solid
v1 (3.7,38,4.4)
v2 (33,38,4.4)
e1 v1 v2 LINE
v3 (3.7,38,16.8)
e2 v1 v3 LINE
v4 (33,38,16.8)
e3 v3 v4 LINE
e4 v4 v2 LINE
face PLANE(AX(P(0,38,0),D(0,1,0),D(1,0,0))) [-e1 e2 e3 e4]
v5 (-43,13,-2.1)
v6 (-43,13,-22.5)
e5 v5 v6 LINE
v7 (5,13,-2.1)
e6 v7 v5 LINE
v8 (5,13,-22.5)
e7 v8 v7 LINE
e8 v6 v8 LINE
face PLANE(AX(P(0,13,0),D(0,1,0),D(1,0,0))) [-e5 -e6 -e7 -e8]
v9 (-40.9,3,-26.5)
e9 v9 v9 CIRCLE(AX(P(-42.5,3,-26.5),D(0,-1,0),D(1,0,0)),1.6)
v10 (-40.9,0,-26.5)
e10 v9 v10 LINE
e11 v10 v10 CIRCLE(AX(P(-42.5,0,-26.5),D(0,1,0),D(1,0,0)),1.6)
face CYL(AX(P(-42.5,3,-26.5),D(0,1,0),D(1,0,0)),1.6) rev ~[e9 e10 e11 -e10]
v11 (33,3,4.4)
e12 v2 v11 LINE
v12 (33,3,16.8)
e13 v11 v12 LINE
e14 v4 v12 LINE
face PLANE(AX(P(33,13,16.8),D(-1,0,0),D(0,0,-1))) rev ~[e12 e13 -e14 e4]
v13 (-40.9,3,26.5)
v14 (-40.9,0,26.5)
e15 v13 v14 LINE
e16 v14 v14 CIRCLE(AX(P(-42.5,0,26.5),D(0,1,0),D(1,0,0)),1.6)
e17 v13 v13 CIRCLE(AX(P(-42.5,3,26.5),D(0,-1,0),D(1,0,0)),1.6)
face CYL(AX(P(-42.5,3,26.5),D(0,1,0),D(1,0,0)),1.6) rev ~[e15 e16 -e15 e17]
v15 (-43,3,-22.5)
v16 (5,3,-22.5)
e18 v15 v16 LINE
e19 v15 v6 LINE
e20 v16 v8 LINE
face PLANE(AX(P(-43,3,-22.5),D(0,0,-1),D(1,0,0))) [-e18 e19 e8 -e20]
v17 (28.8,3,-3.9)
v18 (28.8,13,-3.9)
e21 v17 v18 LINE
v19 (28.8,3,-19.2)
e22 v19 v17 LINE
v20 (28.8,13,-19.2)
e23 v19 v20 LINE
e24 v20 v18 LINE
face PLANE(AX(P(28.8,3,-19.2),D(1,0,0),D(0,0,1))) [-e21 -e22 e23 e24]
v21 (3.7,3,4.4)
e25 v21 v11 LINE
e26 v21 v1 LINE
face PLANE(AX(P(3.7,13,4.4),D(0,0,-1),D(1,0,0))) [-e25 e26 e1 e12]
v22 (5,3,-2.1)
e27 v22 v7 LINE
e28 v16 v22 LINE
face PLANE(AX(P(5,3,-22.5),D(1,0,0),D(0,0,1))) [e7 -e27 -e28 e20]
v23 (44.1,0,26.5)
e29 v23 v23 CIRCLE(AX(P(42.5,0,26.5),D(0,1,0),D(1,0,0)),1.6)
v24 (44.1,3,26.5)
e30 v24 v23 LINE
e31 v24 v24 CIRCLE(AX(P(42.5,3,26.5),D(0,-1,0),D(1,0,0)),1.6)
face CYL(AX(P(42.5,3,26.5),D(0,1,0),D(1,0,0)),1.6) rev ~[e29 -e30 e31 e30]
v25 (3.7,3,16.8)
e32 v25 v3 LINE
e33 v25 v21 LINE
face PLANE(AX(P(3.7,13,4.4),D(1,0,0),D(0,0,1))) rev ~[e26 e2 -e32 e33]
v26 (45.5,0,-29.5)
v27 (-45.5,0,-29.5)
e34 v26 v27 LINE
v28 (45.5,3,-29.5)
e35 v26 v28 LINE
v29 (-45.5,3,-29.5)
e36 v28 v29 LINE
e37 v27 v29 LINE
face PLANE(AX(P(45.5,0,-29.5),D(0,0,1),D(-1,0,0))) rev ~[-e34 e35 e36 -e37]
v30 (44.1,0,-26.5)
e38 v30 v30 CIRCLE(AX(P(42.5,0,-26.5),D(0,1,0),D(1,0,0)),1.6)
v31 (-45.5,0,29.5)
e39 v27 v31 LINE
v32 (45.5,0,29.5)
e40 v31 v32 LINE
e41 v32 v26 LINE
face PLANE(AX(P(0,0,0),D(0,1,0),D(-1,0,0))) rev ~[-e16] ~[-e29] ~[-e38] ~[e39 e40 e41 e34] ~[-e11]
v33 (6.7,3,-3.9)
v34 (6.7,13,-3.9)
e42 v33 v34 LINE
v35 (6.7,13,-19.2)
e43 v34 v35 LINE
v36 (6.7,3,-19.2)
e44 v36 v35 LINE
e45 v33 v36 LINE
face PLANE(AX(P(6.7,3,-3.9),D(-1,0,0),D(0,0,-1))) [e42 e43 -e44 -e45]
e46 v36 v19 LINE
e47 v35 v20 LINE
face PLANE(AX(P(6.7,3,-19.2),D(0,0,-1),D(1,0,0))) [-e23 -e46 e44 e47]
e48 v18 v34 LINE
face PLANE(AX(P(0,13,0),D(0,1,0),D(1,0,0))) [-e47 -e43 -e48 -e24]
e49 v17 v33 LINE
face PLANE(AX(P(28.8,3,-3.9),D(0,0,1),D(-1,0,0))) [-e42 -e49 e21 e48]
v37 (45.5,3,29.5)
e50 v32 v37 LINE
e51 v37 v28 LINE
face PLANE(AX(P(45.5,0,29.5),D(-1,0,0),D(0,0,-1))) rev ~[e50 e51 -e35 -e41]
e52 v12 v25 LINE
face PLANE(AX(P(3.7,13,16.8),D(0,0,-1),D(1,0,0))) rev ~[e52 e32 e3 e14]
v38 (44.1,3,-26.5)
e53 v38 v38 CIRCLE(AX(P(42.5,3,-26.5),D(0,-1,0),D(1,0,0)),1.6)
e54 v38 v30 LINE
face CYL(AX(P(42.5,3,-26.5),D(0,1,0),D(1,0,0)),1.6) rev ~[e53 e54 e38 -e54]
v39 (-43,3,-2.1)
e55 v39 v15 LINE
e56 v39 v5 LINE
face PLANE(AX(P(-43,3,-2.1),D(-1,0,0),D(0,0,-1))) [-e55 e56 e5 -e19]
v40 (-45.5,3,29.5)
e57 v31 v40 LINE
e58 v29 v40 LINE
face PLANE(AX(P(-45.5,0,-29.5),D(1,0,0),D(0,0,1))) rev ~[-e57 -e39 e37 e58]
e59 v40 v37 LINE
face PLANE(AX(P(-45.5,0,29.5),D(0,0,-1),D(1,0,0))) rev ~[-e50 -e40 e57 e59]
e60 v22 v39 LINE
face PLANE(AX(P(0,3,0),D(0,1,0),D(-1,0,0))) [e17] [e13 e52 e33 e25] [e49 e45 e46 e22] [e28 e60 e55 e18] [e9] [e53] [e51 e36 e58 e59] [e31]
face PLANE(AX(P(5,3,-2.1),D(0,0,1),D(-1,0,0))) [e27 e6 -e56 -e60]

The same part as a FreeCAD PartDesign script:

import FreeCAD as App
import Part
import Sketcher

doc = App.newDocument("Part")
body = doc.addObject("PartDesign::Body", "Body")

sketch1 = body.newObject("Sketcher::SketchObject", "Sketch")
sketch1.AttachmentSupport = (doc.getObject("XZ_Plane"), [""])
sketch1.MapMode = "FlatFace"
sketch1.addGeometry([
    Part.LineSegment(App.Vector(45.5, 29.5, 0), App.Vector(45.5, -29.5, 0)),
    Part.LineSegment(App.Vector(45.5, -29.5, 0), App.Vector(-45.5, -29.5, 0)),
    Part.LineSegment(App.Vector(-45.5, -29.5, 0), App.Vector(-45.5, 29.5, 0)),
    Part.LineSegment(App.Vector(-45.5, 29.5, 0), App.Vector(45.5, 29.5, 0)),
], False)
sketch1.addConstraint([
    Sketcher.Constraint("Coincident", 0, 2, 1, 1),
    Sketcher.Constraint("Coincident", 1, 2, 2, 1),
    Sketcher.Constraint("Coincident", 2, 2, 3, 1),
    Sketcher.Constraint("Coincident", 3, 2, 0, 1),
    Sketcher.Constraint("Vertical", 0),
    Sketcher.Constraint("Horizontal", 1),
    Sketcher.Constraint("Vertical", 2),
    Sketcher.Constraint("Horizontal", 3),
    Sketcher.Constraint("Symmetric", 0, 2, 2, 2, -1, 1),
    Sketcher.Constraint("DistanceX", 1, 2, 1, 1, 91.0),
    Sketcher.Constraint("DistanceY", 0, 2, 0, 1, 59.0),
])
pad1 = body.newObject("PartDesign::Pad", "Pad")
pad1.Profile = sketch1
pad1.Length = 3
pad1.Reversed = True

sketch2 = body.newObject("Sketcher::SketchObject", "Sketch001")
sketch2.AttachmentSupport = (doc.getObject("XZ_Plane"), [""])
sketch2.MapMode = "FlatFace"
sketch2.AttachmentOffset = App.Placement(App.Vector(0, 0, -3), App.Rotation())
sketch2.addGeometry([
    Part.LineSegment(App.Vector(5, -22.5, 0), App.Vector(-43, -22.5, 0)),
    Part.LineSegment(App.Vector(-43, -22.5, 0), App.Vector(-43, -2.1, 0)),
    Part.LineSegment(App.Vector(-43, -2.1, 0), App.Vector(5, -2.1, 0)),
    Part.LineSegment(App.Vector(5, -2.1, 0), App.Vector(5, -22.5, 0)),
    Part.LineSegment(App.Vector(28.8, -19.2, 0), App.Vector(6.7, -19.2, 0)),
    Part.LineSegment(App.Vector(6.7, -19.2, 0), App.Vector(6.7, -3.9, 0)),
    Part.LineSegment(App.Vector(6.7, -3.9, 0), App.Vector(28.8, -3.9, 0)),
    Part.LineSegment(App.Vector(28.8, -3.9, 0), App.Vector(28.8, -19.2, 0)),
    Part.LineSegment(App.Vector(33, 4.4, 0), App.Vector(3.7, 4.4, 0)),
    Part.LineSegment(App.Vector(3.7, 4.4, 0), App.Vector(3.7, 16.8, 0)),
    Part.LineSegment(App.Vector(3.7, 16.8, 0), App.Vector(33, 16.8, 0)),
    Part.LineSegment(App.Vector(33, 16.8, 0), App.Vector(33, 4.4, 0)),
], False)
sketch2.addConstraint([
    Sketcher.Constraint("Coincident", 0, 2, 1, 1),
    Sketcher.Constraint("Coincident", 1, 2, 2, 1),
    Sketcher.Constraint("Coincident", 2, 2, 3, 1),
    Sketcher.Constraint("Coincident", 3, 2, 0, 1),
    Sketcher.Constraint("Coincident", 4, 2, 5, 1),
    Sketcher.Constraint("Coincident", 5, 2, 6, 1),
    Sketcher.Constraint("Coincident", 6, 2, 7, 1),
    Sketcher.Constraint("Coincident", 7, 2, 4, 1),
    Sketcher.Constraint("Coincident", 8, 2, 9, 1),
    Sketcher.Constraint("Coincident", 9, 2, 10, 1),
    Sketcher.Constraint("Coincident", 10, 2, 11, 1),
    Sketcher.Constraint("Coincident", 11, 2, 8, 1),
    Sketcher.Constraint("Horizontal", 0),
    Sketcher.Constraint("Vertical", 1),
    Sketcher.Constraint("Horizontal", 2),
    Sketcher.Constraint("Vertical", 3),
    Sketcher.Constraint("Horizontal", 4),
    Sketcher.Constraint("Vertical", 5),
    Sketcher.Constraint("Horizontal", 6),
    Sketcher.Constraint("Vertical", 7),
    Sketcher.Constraint("Horizontal", 8),
    Sketcher.Constraint("Vertical", 9),
    Sketcher.Constraint("Horizontal", 10),
    Sketcher.Constraint("Vertical", 11),
    Sketcher.Constraint("DistanceX", 0, 2, 0, 1, 48.0),
    Sketcher.Constraint("DistanceX", 4, 2, 4, 1, 22.1),
    Sketcher.Constraint("DistanceX", 8, 2, 8, 1, 29.3),
    Sketcher.Constraint("DistanceY", 1, 1, 1, 2, 20.4),
    Sketcher.Constraint("DistanceY", 5, 1, 5, 2, 15.3),
    Sketcher.Constraint("DistanceY", 9, 1, 9, 2, 12.4),
    Sketcher.Constraint("DistanceX", 3, 2, 4, 2, 1.7),
    Sketcher.Constraint("DistanceY", 3, 2, 4, 2, 3.3),
    Sketcher.Constraint("DistanceX", 0, 2, -1, 1, 43.0),
    Sketcher.Constraint("DistanceX", -1, 1, 10, 2, 33.0),
    Sketcher.Constraint("DistanceY", 4, 2, 9, 2, 36.0),
    Sketcher.Constraint("DistanceY", 0, 2, -1, 1, 22.5),
])
pad2 = body.newObject("PartDesign::Pad", "Pad001")
pad2.Profile = sketch2
pad2.Length = 10
pad2.Reversed = True

sketch3 = body.newObject("Sketcher::SketchObject", "Sketch002")
sketch3.AttachmentSupport = (doc.getObject("XZ_Plane"), [""])
sketch3.MapMode = "FlatFace"
sketch3.AttachmentOffset = App.Placement(App.Vector(0, 0, -3), App.Rotation())
sketch3.addGeometry([
    Part.Circle(App.Vector(-42.5, -26.5, 0), App.Vector(0, 0, 1), 1.6),
    Part.Circle(App.Vector(42.5, -26.5, 0), App.Vector(0, 0, 1), 1.6),
    Part.Circle(App.Vector(-42.5, 26.5, 0), App.Vector(0, 0, 1), 1.6),
    Part.Circle(App.Vector(42.5, 26.5, 0), App.Vector(0, 0, 1), 1.6),
], False)
sketch3.addConstraint([
    Sketcher.Constraint("Equal", 0, 1),
    Sketcher.Constraint("Equal", 1, 2),
    Sketcher.Constraint("Equal", 2, 3),
    Sketcher.Constraint("Symmetric", 1, 3, 2, 3, -1, 1),
    Sketcher.Constraint("Symmetric", 0, 3, 3, 3, -1, 1),
    Sketcher.Constraint("Symmetric", 0, 3, 1, 3, -2),
    Sketcher.Constraint("Diameter", 0, 3.2),
    Sketcher.Constraint("DistanceX", 0, 3, 1, 3, 85.0),
    Sketcher.Constraint("DistanceY", 0, 3, 2, 3, 53.0),
])
pocket1 = body.newObject("PartDesign::Pocket", "Pocket")
pocket1.Profile = sketch3
pocket1.Length = 3
pocket1.Reversed = True

sketch4 = body.newObject("Sketcher::SketchObject", "Sketch003")
sketch4.AttachmentSupport = (doc.getObject("XZ_Plane"), [""])
sketch4.MapMode = "FlatFace"
sketch4.AttachmentOffset = App.Placement(App.Vector(0, 0, -13), App.Rotation())
sketch4.addGeometry([
    Part.LineSegment(App.Vector(33, 4.4, 0), App.Vector(3.7, 4.4, 0)),
    Part.LineSegment(App.Vector(3.7, 4.4, 0), App.Vector(3.7, 16.8, 0)),
    Part.LineSegment(App.Vector(3.7, 16.8, 0), App.Vector(33, 16.8, 0)),
    Part.LineSegment(App.Vector(33, 16.8, 0), App.Vector(33, 4.4, 0)),
], False)
sketch4.addConstraint([
    Sketcher.Constraint("Coincident", 0, 2, 1, 1),
    Sketcher.Constraint("Coincident", 1, 2, 2, 1),
    Sketcher.Constraint("Coincident", 2, 2, 3, 1),
    Sketcher.Constraint("Coincident", 3, 2, 0, 1),
    Sketcher.Constraint("Horizontal", 0),
    Sketcher.Constraint("Vertical", 1),
    Sketcher.Constraint("Horizontal", 2),
    Sketcher.Constraint("Vertical", 3),
    Sketcher.Constraint("DistanceX", 0, 2, 0, 1, 29.3),
    Sketcher.Constraint("DistanceY", 1, 1, 1, 2, 12.4),
    Sketcher.Constraint("DistanceX", -1, 1, 2, 2, 33.0),
    Sketcher.Constraint("DistanceY", -1, 1, 0, 2, 4.4),
])
pad3 = body.newObject("PartDesign::Pad", "Pad002")
pad3.Profile = sketch4
pad3.Length = 25
pad3.Reversed = True

doc.recompute()
